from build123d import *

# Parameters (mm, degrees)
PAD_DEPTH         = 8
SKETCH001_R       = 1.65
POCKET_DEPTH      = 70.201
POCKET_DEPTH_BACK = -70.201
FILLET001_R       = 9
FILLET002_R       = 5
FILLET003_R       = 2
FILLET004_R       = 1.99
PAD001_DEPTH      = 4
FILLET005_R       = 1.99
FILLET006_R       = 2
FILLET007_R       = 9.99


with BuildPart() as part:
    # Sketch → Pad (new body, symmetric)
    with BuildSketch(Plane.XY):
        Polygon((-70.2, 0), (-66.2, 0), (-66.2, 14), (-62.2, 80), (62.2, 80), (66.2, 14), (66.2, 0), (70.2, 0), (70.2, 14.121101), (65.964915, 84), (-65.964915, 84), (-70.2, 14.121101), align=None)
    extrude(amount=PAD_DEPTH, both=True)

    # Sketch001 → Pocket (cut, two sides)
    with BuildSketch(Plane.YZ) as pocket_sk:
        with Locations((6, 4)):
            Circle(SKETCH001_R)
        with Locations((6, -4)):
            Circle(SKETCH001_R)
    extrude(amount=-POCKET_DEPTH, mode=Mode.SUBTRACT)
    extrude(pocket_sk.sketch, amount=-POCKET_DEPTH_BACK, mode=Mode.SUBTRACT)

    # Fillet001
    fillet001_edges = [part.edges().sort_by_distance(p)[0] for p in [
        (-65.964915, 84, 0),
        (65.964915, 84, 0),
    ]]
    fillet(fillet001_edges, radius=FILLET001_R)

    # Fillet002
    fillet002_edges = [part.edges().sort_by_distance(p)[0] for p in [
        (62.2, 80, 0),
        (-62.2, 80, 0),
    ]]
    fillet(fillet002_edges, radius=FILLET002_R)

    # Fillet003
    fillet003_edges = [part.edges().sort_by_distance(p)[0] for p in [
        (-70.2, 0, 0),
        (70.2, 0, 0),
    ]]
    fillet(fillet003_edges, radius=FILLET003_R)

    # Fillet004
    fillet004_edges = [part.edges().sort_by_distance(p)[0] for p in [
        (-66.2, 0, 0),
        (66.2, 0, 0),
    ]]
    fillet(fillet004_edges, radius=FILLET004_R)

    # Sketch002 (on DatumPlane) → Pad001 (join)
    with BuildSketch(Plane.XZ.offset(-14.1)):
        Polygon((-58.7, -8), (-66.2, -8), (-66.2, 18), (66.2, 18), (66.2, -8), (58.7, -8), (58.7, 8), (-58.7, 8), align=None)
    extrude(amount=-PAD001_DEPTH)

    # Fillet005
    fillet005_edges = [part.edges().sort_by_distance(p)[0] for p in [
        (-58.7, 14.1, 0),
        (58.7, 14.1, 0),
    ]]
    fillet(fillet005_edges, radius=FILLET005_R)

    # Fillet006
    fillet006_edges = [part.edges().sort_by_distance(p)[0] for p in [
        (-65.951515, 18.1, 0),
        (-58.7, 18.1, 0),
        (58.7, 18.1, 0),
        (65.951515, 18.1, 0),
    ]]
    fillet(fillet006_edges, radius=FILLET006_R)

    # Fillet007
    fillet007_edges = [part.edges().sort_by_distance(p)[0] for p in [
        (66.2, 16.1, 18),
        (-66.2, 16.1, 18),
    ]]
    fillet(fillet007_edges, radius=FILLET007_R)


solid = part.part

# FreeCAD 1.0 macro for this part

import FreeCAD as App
import Part
import Sketcher
Q = App.Units.Quantity


def edges_at(feature, points):
    """Names of the edges that pass closest to the given points."""
    edges = feature.Shape.Edges
    near = lambda p: min(range(len(edges)), key=lambda i: edges[i].distToShape(Part.Vertex(*p))[0])
    return sorted({f"Edge{near(p) + 1}" for p in points})

doc = App.newDocument("Part")
params = doc.addObject("Spreadsheet::Sheet", "Params")
for row, (alias, value) in enumerate([
    ("sketch1_width", "4 mm"),
    ("sketch1_height", "14 mm"),
    ("sketch1_width2", "124.4 mm"),
    ("pad1_length", "16 mm"),
    ("sketch2_diameter", "3.3 mm"),
    ("fillet_radius", "9 mm"),
    ("fillet2_radius", "5 mm"),
    ("fillet3_radius", "2 mm"),
    ("fillet4_radius", "1.99 mm"),
    ("sketch3_height", "16 mm"),
    ("sketch3_height2", "26 mm"),
    ("sketch3_width", "7.5 mm"),
    ("sketch3_width2", "117.4 mm"),
    ("pad2_length", "4 mm"),
    ("fillet5_radius", "1.99 mm"),
    ("fillet6_radius", "2 mm"),
    ("fillet7_radius", "9.99 mm"),
], start=1):
    params.set(f"A{row}", alias)
    params.set(f"B{row}", "=" + value)
    params.setAlias(f"B{row}", alias)

body = doc.addObject("PartDesign::Body", "Body")

# Sketch on XY plane
sketch1 = body.newObject("Sketcher::SketchObject", "Sketch")
sketch1.AttachmentSupport = (doc.getObject("XY_Plane"), [""])
sketch1.MapMode = "FlatFace"
sketch1.addGeometry(Part.LineSegment(App.Vector(-70.2, 0, 0), App.Vector(-66.2, 0, 0)), False)
sketch1.addGeometry(Part.LineSegment(App.Vector(-66.2, 0, 0), App.Vector(-66.2, 14, 0)), False)
sketch1.addGeometry(Part.LineSegment(App.Vector(-66.2, 14, 0), App.Vector(-62.2, 80, 0)), False)
sketch1.addGeometry(Part.LineSegment(App.Vector(-62.2, 80, 0), App.Vector(62.2, 80, 0)), False)
sketch1.addGeometry(Part.LineSegment(App.Vector(62.2, 80, 0), App.Vector(66.2, 14, 0)), False)
sketch1.addGeometry(Part.LineSegment(App.Vector(66.2, 14, 0), App.Vector(66.2, 0, 0)), False)
sketch1.addGeometry(Part.LineSegment(App.Vector(66.2, 0, 0), App.Vector(70.2, 0, 0)), False)
sketch1.addGeometry(Part.LineSegment(App.Vector(70.2, 0, 0), App.Vector(70.2, 14.1, 0)), False)
sketch1.addGeometry(Part.LineSegment(App.Vector(70.2, 14.1, 0), App.Vector(66, 84, 0)), False)
sketch1.addGeometry(Part.LineSegment(App.Vector(66, 84, 0), App.Vector(-66, 84, 0)), False)
sketch1.addGeometry(Part.LineSegment(App.Vector(-66, 84, 0), App.Vector(-70.2, 14.1, 0)), False)
sketch1.addGeometry(Part.LineSegment(App.Vector(-70.2, 14.1, 0), App.Vector(-70.2, 0, 0)), False)
sketch1.addConstraint(Sketcher.Constraint("Coincident", 0, 2, 1, 1))
sketch1.addConstraint(Sketcher.Constraint("Coincident", 1, 2, 2, 1))
sketch1.addConstraint(Sketcher.Constraint("Coincident", 2, 2, 3, 1))
sketch1.addConstraint(Sketcher.Constraint("Coincident", 3, 2, 4, 1))
sketch1.addConstraint(Sketcher.Constraint("Coincident", 4, 2, 5, 1))
sketch1.addConstraint(Sketcher.Constraint("Coincident", 5, 2, 6, 1))
sketch1.addConstraint(Sketcher.Constraint("Coincident", 6, 2, 7, 1))
sketch1.addConstraint(Sketcher.Constraint("Coincident", 7, 2, 8, 1))
sketch1.addConstraint(Sketcher.Constraint("Coincident", 8, 2, 9, 1))
sketch1.addConstraint(Sketcher.Constraint("Coincident", 9, 2, 10, 1))
sketch1.addConstraint(Sketcher.Constraint("Coincident", 10, 2, 11, 1))
sketch1.addConstraint(Sketcher.Constraint("Coincident", 11, 2, 0, 1))
sketch1.addConstraint(Sketcher.Constraint("Horizontal", 0))
sketch1.addConstraint(Sketcher.Constraint("Vertical", 1))
sketch1.addConstraint(Sketcher.Constraint("Horizontal", 3))
sketch1.addConstraint(Sketcher.Constraint("Vertical", 5))
sketch1.addConstraint(Sketcher.Constraint("Horizontal", 6))
sketch1.addConstraint(Sketcher.Constraint("Vertical", 7))
sketch1.addConstraint(Sketcher.Constraint("Horizontal", 9))
sketch1.addConstraint(Sketcher.Constraint("Vertical", 11))
sketch1.addConstraint(Sketcher.Constraint("Symmetric", 0, 2, 5, 2, -1, 1))
sketch1.addConstraint(Sketcher.Constraint("Symmetric", 7, 2, 10, 2, -2))
sketch1.addConstraint(Sketcher.Constraint("PointOnObject", 0, 2, -1))
sketch1.addConstraint(Sketcher.Constraint("Parallel", 4, 8))
sketch1.addConstraint(Sketcher.Constraint("Parallel", 2, 10))
sketch1.addConstraint(Sketcher.Constraint("Horizontal", 1, 2, 4, 2))
sketch1.addConstraint(Sketcher.Constraint("Equal", 2, 4))
sketch1.addConstraint(Sketcher.Constraint("DistanceX", 0, 1, 0, 2, Q("4 mm")))
sketch1.addConstraint(Sketcher.Constraint("DistanceY", 1, 1, 1, 2, Q("14 mm")))
sketch1.addConstraint(Sketcher.Constraint("DistanceX", 3, 1, 3, 2, Q("124.4 mm")))
sketch1.addConstraint(Sketcher.Constraint("DistanceY", -1, 1, 2, 2, Q("80 mm")))
sketch1.addConstraint(Sketcher.Constraint("DistanceY", -1, 1, 8, 2, Q("84 mm")))
sketch1.addConstraint(Sketcher.Constraint("DistanceX", 1, 2, 2, 2, Q("4 mm")))
sketch1.addConstraint(Sketcher.Constraint("DistanceY", 7, 1, 7, 2, Q("14.121101 mm")))
sketch1.setExpression("Constraints[27]", "Params.sketch1_width")
sketch1.setExpression("Constraints[28]", "Params.sketch1_height")
sketch1.setExpression("Constraints[29]", "Params.sketch1_width2")
pad1 = body.newObject("PartDesign::Pad", "Pad")
pad1.Profile = sketch1
pad1.setExpression("Length", "Params.pad1_length")
pad1.Midplane = True

# Sketch on YZ plane
sketch2 = body.newObject("Sketcher::SketchObject", "Sketch001")
sketch2.AttachmentSupport = (doc.getObject("YZ_Plane"), [""])
sketch2.MapMode = "FlatFace"
sketch2.addGeometry(Part.Circle(App.Vector(6, 4, 0), App.Vector(0, 0, 1), 1.6), False)
sketch2.addGeometry(Part.Circle(App.Vector(6, -4, 0), App.Vector(0, 0, 1), 1.6), False)
sketch2.addConstraint(Sketcher.Constraint("Equal", 0, 1))
sketch2.addConstraint(Sketcher.Constraint("Symmetric", 0, 3, 1, 3, -1))
sketch2.addConstraint(Sketcher.Constraint("Diameter", 0, Q("3.3 mm")))
sketch2.addConstraint(Sketcher.Constraint("DistanceX", -1, 1, 0, 3, Q("6 mm")))
sketch2.addConstraint(Sketcher.Constraint("DistanceY", -1, 1, 0, 3, Q("4 mm")))
sketch2.setExpression("Constraints[2]", "Params.sketch2_diameter")
pocket1 = body.newObject("PartDesign::Pocket", "Pocket")
pocket1.Profile = sketch2
pocket1.Type = "ThroughAll"
pocket1.Midplane = True
doc.recompute()

fillet = body.newObject("PartDesign::Fillet", "Fillet")
fillet.Base = (pocket1, edges_at(pocket1, [(-65.965, 84, 0), (65.965, 84, 0)]))
fillet.setExpression("Radius", "Params.fillet_radius")
doc.recompute()

fillet2 = body.newObject("PartDesign::Fillet", "Fillet001")
fillet2.Base = (fillet, edges_at(fillet, [(62.2, 80, 0), (-62.2, 80, 0)]))
fillet2.setExpression("Radius", "Params.fillet2_radius")
doc.recompute()

fillet3 = body.newObject("PartDesign::Fillet", "Fillet002")
fillet3.Base = (fillet2, edges_at(fillet2, [(-70.2, 0, 0), (70.2, 0, 0)]))
fillet3.setExpression("Radius", "Params.fillet3_radius")
doc.recompute()

fillet4 = body.newObject("PartDesign::Fillet", "Fillet003")
fillet4.Base = (fillet3, edges_at(fillet3, [(-66.2, 0, 0), (66.2, 0, 0)]))
fillet4.setExpression("Radius", "Params.fillet4_radius")

# Sketch on XZ plane
sketch3 = body.newObject("Sketcher::SketchObject", "Sketch002")
sketch3.AttachmentSupport = (doc.getObject("XZ_Plane"), [""])
sketch3.MapMode = "FlatFace"
sketch3.AttachmentOffset = App.Placement(App.Vector(0, 0, -14.1), App.Rotation())
sketch3.addGeometry(Part.LineSegment(App.Vector(-66, -8, 0), App.Vector(-59, -8, 0)), False)
sketch3.addGeometry(Part.LineSegment(App.Vector(-59, -8, 0), App.Vector(-59, 8, 0)), False)
sketch3.addGeometry(Part.LineSegment(App.Vector(-59, 8, 0), App.Vector(59, 8, 0)), False)
sketch3.addGeometry(Part.LineSegment(App.Vector(59, 8, 0), App.Vector(59, -8, 0)), False)
sketch3.addGeometry(Part.LineSegment(App.Vector(59, -8, 0), App.Vector(66, -8, 0)), False)
sketch3.addGeometry(Part.LineSegment(App.Vector(66, -8, 0), App.Vector(66, 18, 0)), False)
sketch3.addGeometry(Part.LineSegment(App.Vector(66, 18, 0), App.Vector(-66, 18, 0)), False)
sketch3.addGeometry(Part.LineSegment(App.Vector(-66, 18, 0), App.Vector(-66, -8, 0)), False)
sketch3.addConstraint(Sketcher.Constraint("Coincident", 0, 2, 1, 1))
sketch3.addConstraint(Sketcher.Constraint("Coincident", 1, 2, 2, 1))
sketch3.addConstraint(Sketcher.Constraint("Coincident", 2, 2, 3, 1))
sketch3.addConstraint(Sketcher.Constraint("Coincident", 3, 2, 4, 1))
sketch3.addConstraint(Sketcher.Constraint("Coincident", 4, 2, 5, 1))
sketch3.addConstraint(Sketcher.Constraint("Coincident", 5, 2, 6, 1))
sketch3.addConstraint(Sketcher.Constraint("Coincident", 6, 2, 7, 1))
sketch3.addConstraint(Sketcher.Constraint("Coincident", 7, 2, 0, 1))
sketch3.addConstraint(Sketcher.Constraint("Horizontal", 0))
sketch3.addConstraint(Sketcher.Constraint("Vertical", 1))
sketch3.addConstraint(Sketcher.Constraint("Horizontal", 2))
sketch3.addConstraint(Sketcher.Constraint("Vertical", 3))
sketch3.addConstraint(Sketcher.Constraint("Horizontal", 4))
sketch3.addConstraint(Sketcher.Constraint("Vertical", 5))
sketch3.addConstraint(Sketcher.Constraint("Horizontal", 6))
sketch3.addConstraint(Sketcher.Constraint("Vertical", 7))
sketch3.addConstraint(Sketcher.Constraint("Symmetric", 0, 2, 2, 2, -1, 1))
sketch3.addConstraint(Sketcher.Constraint("Symmetric", 4, 2, 7, 2, -2))
sketch3.addConstraint(Sketcher.Constraint("DistanceY", 1, 1, 1, 2, Q("16 mm")))
sketch3.addConstraint(Sketcher.Constraint("DistanceY", 5, 1, 5, 2, Q("26 mm")))
sketch3.addConstraint(Sketcher.Constraint("DistanceX", 0, 1, 0, 2, Q("7.5 mm")))
sketch3.addConstraint(Sketcher.Constraint("DistanceX", 2, 1, 2, 2, Q("117.4 mm")))
sketch3.setExpression("Constraints[18]", "Params.sketch3_height")
sketch3.setExpression("Constraints[19]", "Params.sketch3_height2")
sketch3.setExpression("Constraints[20]", "Params.sketch3_width")
sketch3.setExpression("Constraints[21]", "Params.sketch3_width2")
pad2 = body.newObject("PartDesign::Pad", "Pad001")
pad2.Profile = sketch3
pad2.setExpression("Length", "Params.pad2_length")
pad2.Reversed = True
doc.recompute()

fillet5 = body.newObject("PartDesign::Fillet", "Fillet004")
fillet5.Base = (pad2, edges_at(pad2, [(-58.7, 14.1, 0), (58.7, 14.1, 0)]))
fillet5.setExpression("Radius", "Params.fillet5_radius")
doc.recompute()

fillet6 = body.newObject("PartDesign::Fillet", "Fillet005")
fillet6.Base = (fillet5, edges_at(fillet5, [
    (-65.952, 18.1, 0),
    (-58.7, 18.1, 0),
    (58.7, 18.1, 0),
    (65.952, 18.1, 0),
]))
fillet6.setExpression("Radius", "Params.fillet6_radius")
doc.recompute()

fillet7 = body.newObject("PartDesign::Fillet", "Fillet006")
fillet7.Base = (fillet6, edges_at(fillet6, [(66.2, 16.1, 18), (-66.2, 16.1, 18)]))
fillet7.setExpression("Radius", "Params.fillet7_radius")

doc.recompute()
